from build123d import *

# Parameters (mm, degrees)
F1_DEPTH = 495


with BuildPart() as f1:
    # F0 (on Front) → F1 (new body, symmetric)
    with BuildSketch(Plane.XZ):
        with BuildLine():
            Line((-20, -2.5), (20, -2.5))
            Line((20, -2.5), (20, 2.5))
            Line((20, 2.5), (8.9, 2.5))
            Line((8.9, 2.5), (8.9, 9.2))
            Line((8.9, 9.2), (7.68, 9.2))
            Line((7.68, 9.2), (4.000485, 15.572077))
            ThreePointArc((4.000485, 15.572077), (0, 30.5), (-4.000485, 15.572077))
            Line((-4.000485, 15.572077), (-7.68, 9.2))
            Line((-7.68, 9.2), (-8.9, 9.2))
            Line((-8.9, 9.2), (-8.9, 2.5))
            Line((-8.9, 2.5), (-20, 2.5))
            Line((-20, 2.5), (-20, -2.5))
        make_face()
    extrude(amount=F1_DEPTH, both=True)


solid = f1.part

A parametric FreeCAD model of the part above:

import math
import FreeCAD as App
import Part
import Sketcher

doc = App.newDocument("Part")
params = doc.addObject("Spreadsheet::Sheet", "Params")
for row, (alias, value) in enumerate([
    ("sketch1_radius", "8 mm"),
    ("sketch1_width", "40 mm"),
    ("sketch1_height", "5 mm"),
    ("sketch1_width2", "11.1 mm"),
    ("sketch1_height2", "6.7 mm"),
    ("pad1_length", "990 mm"),
], start=1):
    params.set(f"A{row}", alias)
    params.set(f"B{row}", "=" + value)
    params.setAlias(f"B{row}", alias)

body = doc.addObject("PartDesign::Body", "Body")

sketch1 = body.newObject("Sketcher::SketchObject", "Sketch")
sketch1.AttachmentSupport = (doc.getObject("XZ_Plane"), [""])
sketch1.MapMode = "FlatFace"
sketch1.addGeometry([
    Part.LineSegment(App.Vector(-20, -2.5, 0), App.Vector(20, -2.5, 0)),
    Part.LineSegment(App.Vector(20, -2.5, 0), App.Vector(20, 2.5, 0)),
    Part.LineSegment(App.Vector(20, 2.5, 0), App.Vector(8.9, 2.5, 0)),
    Part.LineSegment(App.Vector(8.9, 2.5, 0), App.Vector(8.9, 9.2, 0)),
    Part.LineSegment(App.Vector(8.9, 9.2, 0), App.Vector(7.7, 9.2, 0)),
    Part.LineSegment(App.Vector(7.7, 9.2, 0), App.Vector(4, 15.6, 0)),
    Part.ArcOfCircle(Part.Circle(App.Vector(0, 22.5, 0), App.Vector(0, 0, 1), 8), math.radians(-60), math.radians(240)),
    Part.LineSegment(App.Vector(-4, 15.6, 0), App.Vector(-7.7, 9.2, 0)),
    Part.LineSegment(App.Vector(-7.7, 9.2, 0), App.Vector(-8.9, 9.2, 0)),
    Part.LineSegment(App.Vector(-8.9, 9.2, 0), App.Vector(-8.9, 2.5, 0)),
    Part.LineSegment(App.Vector(-8.9, 2.5, 0), App.Vector(-20, 2.5, 0)),
    Part.LineSegment(App.Vector(-20, 2.5, 0), App.Vector(-20, -2.5, 0)),
], False)
sketch1.addConstraint([
    Sketcher.Constraint("Coincident", 0, 2, 1, 1),
    Sketcher.Constraint("Coincident", 1, 2, 2, 1),
    Sketcher.Constraint("Coincident", 2, 2, 3, 1),
    Sketcher.Constraint("Coincident", 3, 2, 4, 1),
    Sketcher.Constraint("Coincident", 4, 2, 5, 1),
    Sketcher.Constraint("Coincident", 5, 2, 6, 1),
    Sketcher.Constraint("Coincident", 6, 2, 7, 1),
    Sketcher.Constraint("Coincident", 7, 2, 8, 1),
    Sketcher.Constraint("Coincident", 8, 2, 9, 1),
    Sketcher.Constraint("Coincident", 9, 2, 10, 1),
    Sketcher.Constraint("Coincident", 10, 2, 11, 1),
    Sketcher.Constraint("Coincident", 11, 2, 0, 1),
    Sketcher.Constraint("Horizontal", 0),
    Sketcher.Constraint("Vertical", 1),
    Sketcher.Constraint("Horizontal", 2),
    Sketcher.Constraint("Vertical", 3),
    Sketcher.Constraint("Horizontal", 4),
    Sketcher.Constraint("Horizontal", 8),
    Sketcher.Constraint("Vertical", 9),
    Sketcher.Constraint("Horizontal", 10),
    Sketcher.Constraint("Vertical", 11),
    Sketcher.Constraint("Symmetric", 0, 2, 10, 2, -1, 1),
    Sketcher.Constraint("Symmetric", 5, 2, 6, 2, -2),
    Sketcher.Constraint("Symmetric", 4, 2, 7, 2, -2),
    Sketcher.Constraint("Symmetric", 2, 2, 9, 2, -2),
    Sketcher.Constraint("Radius", 6, 8.0),
    Sketcher.Constraint("DistanceX", 0, 1, 0, 2, 40.0),
    Sketcher.Constraint("DistanceY", 1, 1, 1, 2, 5.0),
    Sketcher.Constraint("DistanceX", 2, 2, 2, 1, 11.1),
    Sketcher.Constraint("DistanceY", 3, 1, 3, 2, 6.7),
    Sketcher.Constraint("DistanceY", 0, 2, 6, 3, 25.0),
    Sketcher.Constraint("DistanceX", 4, 2, 4, 1, 1.22),
    Sketcher.Constraint("DistanceX", 6, 2, 5, 2, 8.00097),
])
sketch1.setExpression("Constraints[25]", "Params.sketch1_radius")
sketch1.setExpression("Constraints[26]", "Params.sketch1_width")
sketch1.setExpression("Constraints[27]", "Params.sketch1_height")
sketch1.setExpression("Constraints[28]", "Params.sketch1_width2")
sketch1.setExpression("Constraints[29]", "Params.sketch1_height2")
pad1 = body.newObject("PartDesign::Pad", "Pad")
pad1.Profile = sketch1
pad1.setExpression("Length", "Params.pad1_length")
pad1.Midplane = True

doc.recompute()
